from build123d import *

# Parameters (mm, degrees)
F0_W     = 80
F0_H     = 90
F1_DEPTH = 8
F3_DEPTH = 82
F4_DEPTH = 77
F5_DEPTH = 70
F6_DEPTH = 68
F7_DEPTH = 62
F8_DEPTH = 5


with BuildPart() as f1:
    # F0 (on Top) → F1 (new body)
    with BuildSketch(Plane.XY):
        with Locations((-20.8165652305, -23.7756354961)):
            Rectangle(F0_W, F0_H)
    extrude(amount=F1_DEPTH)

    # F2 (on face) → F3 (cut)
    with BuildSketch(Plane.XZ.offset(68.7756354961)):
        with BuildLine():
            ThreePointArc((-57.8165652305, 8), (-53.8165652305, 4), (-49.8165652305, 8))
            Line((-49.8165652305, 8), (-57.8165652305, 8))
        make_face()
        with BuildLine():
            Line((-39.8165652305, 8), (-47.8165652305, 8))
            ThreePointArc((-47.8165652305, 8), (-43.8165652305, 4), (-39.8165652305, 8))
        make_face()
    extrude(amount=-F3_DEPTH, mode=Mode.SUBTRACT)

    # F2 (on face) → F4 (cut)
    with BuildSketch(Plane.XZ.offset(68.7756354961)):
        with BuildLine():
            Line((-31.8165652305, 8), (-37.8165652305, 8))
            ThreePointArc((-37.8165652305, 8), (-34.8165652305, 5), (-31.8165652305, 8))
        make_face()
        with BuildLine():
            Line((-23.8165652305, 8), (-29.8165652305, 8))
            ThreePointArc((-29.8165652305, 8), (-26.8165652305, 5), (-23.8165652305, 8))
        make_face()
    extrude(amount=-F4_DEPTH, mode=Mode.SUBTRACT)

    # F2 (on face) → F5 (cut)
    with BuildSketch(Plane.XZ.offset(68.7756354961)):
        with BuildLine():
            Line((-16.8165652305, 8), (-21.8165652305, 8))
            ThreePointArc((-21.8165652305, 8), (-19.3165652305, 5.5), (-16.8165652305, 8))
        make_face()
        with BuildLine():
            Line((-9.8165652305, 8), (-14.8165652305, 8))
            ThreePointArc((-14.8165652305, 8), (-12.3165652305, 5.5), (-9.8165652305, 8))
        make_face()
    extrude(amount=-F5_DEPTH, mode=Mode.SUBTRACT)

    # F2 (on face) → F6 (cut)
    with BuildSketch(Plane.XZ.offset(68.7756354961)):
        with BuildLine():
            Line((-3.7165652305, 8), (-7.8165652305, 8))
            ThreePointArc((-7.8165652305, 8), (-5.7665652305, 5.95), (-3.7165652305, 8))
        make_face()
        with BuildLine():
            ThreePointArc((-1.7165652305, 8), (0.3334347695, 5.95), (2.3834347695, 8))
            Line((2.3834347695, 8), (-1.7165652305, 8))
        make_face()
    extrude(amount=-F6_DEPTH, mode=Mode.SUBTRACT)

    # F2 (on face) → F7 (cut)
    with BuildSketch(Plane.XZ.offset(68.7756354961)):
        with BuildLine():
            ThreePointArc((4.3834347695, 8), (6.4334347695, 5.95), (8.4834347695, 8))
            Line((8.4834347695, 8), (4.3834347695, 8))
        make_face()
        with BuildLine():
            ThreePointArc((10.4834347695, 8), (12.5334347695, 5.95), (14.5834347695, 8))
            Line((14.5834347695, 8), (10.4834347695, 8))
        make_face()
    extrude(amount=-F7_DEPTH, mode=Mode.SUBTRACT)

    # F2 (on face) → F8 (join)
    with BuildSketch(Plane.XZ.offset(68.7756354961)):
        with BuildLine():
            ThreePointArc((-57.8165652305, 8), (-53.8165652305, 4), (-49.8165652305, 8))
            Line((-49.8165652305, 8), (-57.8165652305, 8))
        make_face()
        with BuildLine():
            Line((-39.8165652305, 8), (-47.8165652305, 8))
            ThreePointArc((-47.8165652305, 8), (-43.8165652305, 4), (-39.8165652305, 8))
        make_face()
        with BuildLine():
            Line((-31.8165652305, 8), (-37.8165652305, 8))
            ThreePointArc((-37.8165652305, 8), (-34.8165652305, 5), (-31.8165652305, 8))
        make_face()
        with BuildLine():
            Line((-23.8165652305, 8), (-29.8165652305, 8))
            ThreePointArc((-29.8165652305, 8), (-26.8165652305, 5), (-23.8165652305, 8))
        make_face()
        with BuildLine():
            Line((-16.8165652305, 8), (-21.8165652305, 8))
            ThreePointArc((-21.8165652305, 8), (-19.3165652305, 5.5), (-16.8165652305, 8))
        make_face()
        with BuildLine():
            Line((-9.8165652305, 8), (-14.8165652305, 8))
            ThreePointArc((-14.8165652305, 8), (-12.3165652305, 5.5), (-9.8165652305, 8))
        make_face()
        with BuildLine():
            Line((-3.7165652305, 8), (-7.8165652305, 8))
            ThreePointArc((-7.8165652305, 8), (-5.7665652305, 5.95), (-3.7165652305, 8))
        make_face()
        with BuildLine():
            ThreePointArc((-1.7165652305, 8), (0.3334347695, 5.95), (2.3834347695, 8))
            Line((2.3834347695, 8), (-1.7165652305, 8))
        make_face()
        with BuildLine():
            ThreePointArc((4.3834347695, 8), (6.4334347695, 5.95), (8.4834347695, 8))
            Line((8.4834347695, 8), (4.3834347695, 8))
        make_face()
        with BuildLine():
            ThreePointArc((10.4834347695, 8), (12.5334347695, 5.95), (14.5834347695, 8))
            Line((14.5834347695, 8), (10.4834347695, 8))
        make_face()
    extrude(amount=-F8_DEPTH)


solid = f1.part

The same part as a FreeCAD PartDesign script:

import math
import FreeCAD as App
import Part
import Sketcher
from FreeCAD import Vector
Q = App.Units.Quantity


def add_polygon(sketch, points):
    """Adds a closed chain of lines whose ends are joined by coincident constraints."""
    first, n = sketch.GeometryCount, len(points)
    for a, b in zip(points, points[1:] + points[:1]):
        sketch.addGeometry(Part.LineSegment(App.Vector(*a, 0), App.Vector(*b, 0)), False)
    for i in range(n):
        sketch.addConstraint(Sketcher.Constraint("Coincident", first + i, 2, first + (i + 1) % n, 1))

doc = App.newDocument("Part")
body = doc.addObject("PartDesign::Body", "Body")

sketch1 = doc.addObject("Sketcher::SketchObject", "Sketch")
body.addObject(sketch1)
sketch1.AttachmentSupport = (doc.XY_Plane, [""])
sketch1.MapMode = "FlatFace"
add_polygon(sketch1, [(-60.816565, 21.224365), (-60.816565, -68.775635), (19.183435, -68.775635), (19.183435, 21.224365)])
sketch1.addConstraint(Sketcher.Constraint("Vertical", 0))
sketch1.addConstraint(Sketcher.Constraint("Horizontal", 1))
sketch1.addConstraint(Sketcher.Constraint("Vertical", 2))
sketch1.addConstraint(Sketcher.Constraint("Horizontal", 3))
sketch1.addConstraint(Sketcher.Constraint("DistanceX", 1, 1, 1, 2, Q("80 mm")))
sketch1.addConstraint(Sketcher.Constraint("DistanceY", 0, 2, 0, 1, Q("90 mm")))
sketch1.addConstraint(Sketcher.Constraint("DistanceX", 0, 2, -1, 1, Q("60.816565 mm")))
sketch1.addConstraint(Sketcher.Constraint("DistanceY", 0, 2, -1, 1, Q("68.775635 mm")))
pad1 = doc.addObject("PartDesign::Pad", "Pad")
body.addObject(pad1)
pad1.Profile = sketch1
pad1.Length = 8

sketch2 = doc.addObject("Sketcher::SketchObject", "Sketch001")
body.addObject(sketch2)
sketch2.AttachmentSupport = (doc.XZ_Plane, [""])
sketch2.MapMode = "FlatFace"
sketch2.AttachmentOffset = App.Placement(Vector(0, 0, 68.775635), App.Rotation())
sketch2.addGeometry(Part.ArcOfCircle(Part.Circle(Vector(-53.816565, 8, 0), Vector(0, 0, 1), 4), math.radians(180), math.radians(360)), False)
sketch2.addGeometry(Part.LineSegment(Vector(-49.816565, 8, 0), Vector(-57.816565, 8, 0)), False)
sketch2.addGeometry(Part.LineSegment(Vector(-39.816565, 8, 0), Vector(-47.816565, 8, 0)), False)
sketch2.addGeometry(Part.ArcOfCircle(Part.Circle(Vector(-43.816565, 8, 0), Vector(0, 0, 1), 4), math.radians(180), math.radians(360)), False)
sketch2.addConstraint(Sketcher.Constraint("Coincident", 0, 1, 1, 2))
sketch2.addConstraint(Sketcher.Constraint("Coincident", 1, 1, 0, 2))
sketch2.addConstraint(Sketcher.Constraint("Coincident", 2, 1, 3, 2))
sketch2.addConstraint(Sketcher.Constraint("Coincident", 3, 1, 2, 2))
sketch2.addConstraint(Sketcher.Constraint("Horizontal", 1))
sketch2.addConstraint(Sketcher.Constraint("Horizontal", 2))
sketch2.addConstraint(Sketcher.Constraint("Equal", 0, 3))
sketch2.addConstraint(Sketcher.Constraint("Horizontal", 0, 3, 3, 3))
sketch2.addConstraint(Sketcher.Constraint("Horizontal", 3, 3, 0, 1))
sketch2.addConstraint(Sketcher.Constraint("Horizontal", 1, 1, 2, 1))
sketch2.addConstraint(Sketcher.Constraint("Radius", 0, Q("4 mm")))
sketch2.addConstraint(Sketcher.Constraint("DistanceY", -1, 1, 0, 3, Q("8 mm")))
sketch2.addConstraint(Sketcher.Constraint("DistanceX", 0, 3, 3, 3, Q("10 mm")))
sketch2.addConstraint(Sketcher.Constraint("DistanceX", 0, 3, -1, 1, Q("53.816565 mm")))
pocket1 = doc.addObject("PartDesign::Pocket", "Pocket")
body.addObject(pocket1)
pocket1.Profile = sketch2
pocket1.Length = 82

sketch3 = doc.addObject("Sketcher::SketchObject", "Sketch002")
body.addObject(sketch3)
sketch3.AttachmentSupport = (doc.XZ_Plane, [""])
sketch3.MapMode = "FlatFace"
sketch3.AttachmentOffset = App.Placement(Vector(0, 0, 68.775635), App.Rotation())
sketch3.addGeometry(Part.LineSegment(Vector(-31.816565, 8, 0), Vector(-37.816565, 8, 0)), False)
sketch3.addGeometry(Part.ArcOfCircle(Part.Circle(Vector(-34.816565, 8, 0), Vector(0, 0, 1), 3), math.radians(180), math.radians(360)), False)
sketch3.addGeometry(Part.LineSegment(Vector(-23.816565, 8, 0), Vector(-29.816565, 8, 0)), False)
sketch3.addGeometry(Part.ArcOfCircle(Part.Circle(Vector(-26.816565, 8, 0), Vector(0, 0, 1), 3), math.radians(180), math.radians(360)), False)
sketch3.addConstraint(Sketcher.Constraint("Coincident", 0, 1, 1, 2))
sketch3.addConstraint(Sketcher.Constraint("Coincident", 1, 1, 0, 2))
sketch3.addConstraint(Sketcher.Constraint("Coincident", 2, 1, 3, 2))
sketch3.addConstraint(Sketcher.Constraint("Coincident", 3, 1, 2, 2))
sketch3.addConstraint(Sketcher.Constraint("Horizontal", 0))
sketch3.addConstraint(Sketcher.Constraint("Horizontal", 2))
sketch3.addConstraint(Sketcher.Constraint("Equal", 1, 3))
sketch3.addConstraint(Sketcher.Constraint("Horizontal", 1, 3, 3, 3))
sketch3.addConstraint(Sketcher.Constraint("Horizontal", 3, 3, 0, 1))
sketch3.addConstraint(Sketcher.Constraint("Horizontal", 1, 1, 2, 1))
sketch3.addConstraint(Sketcher.Constraint("Radius", 1, Q("3 mm")))
sketch3.addConstraint(Sketcher.Constraint("DistanceY", -1, 1, 1, 3, Q("8 mm")))
sketch3.addConstraint(Sketcher.Constraint("DistanceX", 1, 3, 3, 3, Q("8 mm")))
sketch3.addConstraint(Sketcher.Constraint("DistanceX", 1, 3, -1, 1, Q("34.816565 mm")))
pocket2 = doc.addObject("PartDesign::Pocket", "Pocket001")
body.addObject(pocket2)
pocket2.Profile = sketch3
pocket2.Length = 77

sketch4 = doc.addObject("Sketcher::SketchObject", "Sketch003")
body.addObject(sketch4)
sketch4.AttachmentSupport = (doc.XZ_Plane, [""])
sketch4.MapMode = "FlatFace"
sketch4.AttachmentOffset = App.Placement(Vector(0, 0, 68.775635), App.Rotation())
sketch4.addGeometry(Part.LineSegment(Vector(-16.816565, 8, 0), Vector(-21.816565, 8, 0)), False)
sketch4.addGeometry(Part.ArcOfCircle(Part.Circle(Vector(-19.316565, 8, 0), Vector(0, 0, 1), 2.5), math.radians(180), math.radians(360)), False)
sketch4.addGeometry(Part.LineSegment(Vector(-9.816565, 8, 0), Vector(-14.816565, 8, 0)), False)
sketch4.addGeometry(Part.ArcOfCircle(Part.Circle(Vector(-12.316565, 8, 0), Vector(0, 0, 1), 2.5), math.radians(180), math.radians(360)), False)
sketch4.addConstraint(Sketcher.Constraint("Coincident", 0, 1, 1, 2))
sketch4.addConstraint(Sketcher.Constraint("Coincident", 1, 1, 0, 2))
sketch4.addConstraint(Sketcher.Constraint("Coincident", 2, 1, 3, 2))
sketch4.addConstraint(Sketcher.Constraint("Coincident", 3, 1, 2, 2))
sketch4.addConstraint(Sketcher.Constraint("Horizontal", 0))
sketch4.addConstraint(Sketcher.Constraint("Horizontal", 2))
sketch4.addConstraint(Sketcher.Constraint("Equal", 1, 3))
sketch4.addConstraint(Sketcher.Constraint("Horizontal", 1, 3, 3, 3))
sketch4.addConstraint(Sketcher.Constraint("Horizontal", 3, 3, 0, 1))
sketch4.addConstraint(Sketcher.Constraint("Horizontal", 1, 1, 2, 1))
sketch4.addConstraint(Sketcher.Constraint("Radius", 1, Q("2.5 mm")))
sketch4.addConstraint(Sketcher.Constraint("DistanceY", -1, 1, 1, 3, Q("8 mm")))
sketch4.addConstraint(Sketcher.Constraint("DistanceX", 1, 3, 3, 3, Q("7 mm")))
sketch4.addConstraint(Sketcher.Constraint("DistanceX", 1, 3, -1, 1, Q("19.316565 mm")))
pocket3 = doc.addObject("PartDesign::Pocket", "Pocket002")
body.addObject(pocket3)
pocket3.Profile = sketch4
pocket3.Length = 70

sketch5 = doc.addObject("Sketcher::SketchObject", "Sketch004")
body.addObject(sketch5)
sketch5.AttachmentSupport = (doc.XZ_Plane, [""])
sketch5.MapMode = "FlatFace"
sketch5.AttachmentOffset = App.Placement(Vector(0, 0, 68.775635), App.Rotation())
sketch5.addGeometry(Part.LineSegment(Vector(-3.716565, 8, 0), Vector(-7.816565, 8, 0)), False)
sketch5.addGeometry(Part.ArcOfCircle(Part.Circle(Vector(-5.766565, 8, 0), Vector(0, 0, 1), 2.05), math.radians(180), math.radians(360)), False)
sketch5.addGeometry(Part.ArcOfCircle(Part.Circle(Vector(0.333435, 8, 0), Vector(0, 0, 1), 2.05), math.radians(180), math.radians(360)), False)
sketch5.addGeometry(Part.LineSegment(Vector(2.383435, 8, 0), Vector(-1.716565, 8, 0)), False)
sketch5.addConstraint(Sketcher.Constraint("Coincident", 0, 1, 1, 2))
sketch5.addConstraint(Sketcher.Constraint("Coincident", 1, 1, 0, 2))
sketch5.addConstraint(Sketcher.Constraint("Coincident", 2, 1, 3, 2))
sketch5.addConstraint(Sketcher.Constraint("Coincident", 3, 1, 2, 2))
sketch5.addConstraint(Sketcher.Constraint("Horizontal", 0))
sketch5.addConstraint(Sketcher.Constraint("Horizontal", 3))
sketch5.addConstraint(Sketcher.Constraint("Equal", 1, 2))
sketch5.addConstraint(Sketcher.Constraint("Horizontal", 1, 3, 2, 3))
sketch5.addConstraint(Sketcher.Constraint("Horizontal", 2, 3, 0, 1))
sketch5.addConstraint(Sketcher.Constraint("Horizontal", 1, 1, 2, 1))
sketch5.addConstraint(Sketcher.Constraint("Radius", 1, Q("2.05 mm")))
sketch5.addConstraint(Sketcher.Constraint("DistanceY", -1, 1, 1, 3, Q("8 mm")))
sketch5.addConstraint(Sketcher.Constraint("DistanceX", 0, 1, 2, 1, Q("2 mm")))
sketch5.addConstraint(Sketcher.Constraint("DistanceX", 1, 3, -1, 1, Q("5.766565 mm")))
pocket4 = doc.addObject("PartDesign::Pocket", "Pocket003")
body.addObject(pocket4)
pocket4.Profile = sketch5
pocket4.Length = 68

sketch6 = doc.addObject("Sketcher::SketchObject", "Sketch005")
body.addObject(sketch6)
sketch6.AttachmentSupport = (doc.XZ_Plane, [""])
sketch6.MapMode = "FlatFace"
sketch6.AttachmentOffset = App.Placement(Vector(0, 0, 68.775635), App.Rotation())
sketch6.addGeometry(Part.ArcOfCircle(Part.Circle(Vector(6.433435, 8, 0), Vector(0, 0, 1), 2.05), math.radians(180), math.radians(360)), False)
sketch6.addGeometry(Part.LineSegment(Vector(8.483435, 8, 0), Vector(4.383435, 8, 0)), False)
sketch6.addGeometry(Part.ArcOfCircle(Part.Circle(Vector(12.533435, 8, 0), Vector(0, 0, 1), 2.05), math.radians(180), math.radians(360)), False)
sketch6.addGeometry(Part.LineSegment(Vector(14.583435, 8, 0), Vector(10.483435, 8, 0)), False)
sketch6.addConstraint(Sketcher.Constraint("Coincident", 0, 1, 1, 2))
sketch6.addConstraint(Sketcher.Constraint("Coincident", 1, 1, 0, 2))
sketch6.addConstraint(Sketcher.Constraint("Coincident", 2, 1, 3, 2))
sketch6.addConstraint(Sketcher.Constraint("Coincident", 3, 1, 2, 2))
sketch6.addConstraint(Sketcher.Constraint("Horizontal", 1))
sketch6.addConstraint(Sketcher.Constraint("Horizontal", 3))
sketch6.addConstraint(Sketcher.Constraint("Equal", 0, 2))
sketch6.addConstraint(Sketcher.Constraint("Horizontal", 0, 3, 2, 3))
sketch6.addConstraint(Sketcher.Constraint("Horizontal", 2, 3, 0, 1))
sketch6.addConstraint(Sketcher.Constraint("Horizontal", 1, 1, 2, 1))
sketch6.addConstraint(Sketcher.Constraint("Radius", 0, Q("2.05 mm")))
sketch6.addConstraint(Sketcher.Constraint("DistanceY", -1, 1, 0, 3, Q("8 mm")))
sketch6.addConstraint(Sketcher.Constraint("DistanceX", 1, 1, 2, 1, Q("2 mm")))
sketch6.addConstraint(Sketcher.Constraint("DistanceX", -1, 1, 0, 3, Q("6.433435 mm")))
pocket5 = doc.addObject("PartDesign::Pocket", "Pocket004")
body.addObject(pocket5)
pocket5.Profile = sketch6
pocket5.Length = 62

sketch7 = doc.addObject("Sketcher::SketchObject", "Sketch006")
body.addObject(sketch7)
sketch7.AttachmentSupport = (doc.XZ_Plane, [""])
sketch7.MapMode = "FlatFace"
sketch7.AttachmentOffset = App.Placement(Vector(0, 0, 68.775635), App.Rotation())
sketch7.addGeometry(Part.ArcOfCircle(Part.Circle(Vector(-53.816565, 8, 0), Vector(0, 0, 1), 4), math.radians(180), math.radians(360)), False)
sketch7.addGeometry(Part.LineSegment(Vector(-49.816565, 8, 0), Vector(-57.816565, 8, 0)), False)
sketch7.addGeometry(Part.LineSegment(Vector(-39.816565, 8, 0), Vector(-47.816565, 8, 0)), False)
sketch7.addGeometry(Part.ArcOfCircle(Part.Circle(Vector(-43.816565, 8, 0), Vector(0, 0, 1), 4), math.radians(180), math.radians(360)), False)
sketch7.addGeometry(Part.LineSegment(Vector(-31.816565, 8, 0), Vector(-37.816565, 8, 0)), False)
sketch7.addGeometry(Part.ArcOfCircle(Part.Circle(Vector(-34.816565, 8, 0), Vector(0, 0, 1), 3), math.radians(180), math.radians(360)), False)
sketch7.addGeometry(Part.LineSegment(Vector(-23.816565, 8, 0), Vector(-29.816565, 8, 0)), False)
sketch7.addGeometry(Part.ArcOfCircle(Part.Circle(Vector(-26.816565, 8, 0), Vector(0, 0, 1), 3), math.radians(180), math.radians(360)), False)
sketch7.addGeometry(Part.LineSegment(Vector(-16.816565, 8, 0), Vector(-21.816565, 8, 0)), False)
sketch7.addGeometry(Part.ArcOfCircle(Part.Circle(Vector(-19.316565, 8, 0), Vector(0, 0, 1), 2.5), math.radians(180), math.radians(360)), False)
sketch7.addGeometry(Part.LineSegment(Vector(-9.816565, 8, 0), Vector(-14.816565, 8, 0)), False)
sketch7.addGeometry(Part.ArcOfCircle(Part.Circle(Vector(-12.316565, 8, 0), Vector(0, 0, 1), 2.5), math.radians(180), math.radians(360)), False)
sketch7.addGeometry(Part.LineSegment(Vector(-3.716565, 8, 0), Vector(-7.816565, 8, 0)), False)
sketch7.addGeometry(Part.ArcOfCircle(Part.Circle(Vector(-5.766565, 8, 0), Vector(0, 0, 1), 2.05), math.radians(180), math.radians(360)), False)
sketch7.addGeometry(Part.ArcOfCircle(Part.Circle(Vector(0.333435, 8, 0), Vector(0, 0, 1), 2.05), math.radians(180), math.radians(360)), False)
sketch7.addGeometry(Part.LineSegment(Vector(2.383435, 8, 0), Vector(-1.716565, 8, 0)), False)
sketch7.addGeometry(Part.ArcOfCircle(Part.Circle(Vector(6.433435, 8, 0), Vector(0, 0, 1), 2.05), math.radians(180), math.radians(360)), False)
sketch7.addGeometry(Part.LineSegment(Vector(8.483435, 8, 0), Vector(4.383435, 8, 0)), False)
sketch7.addGeometry(Part.ArcOfCircle(Part.Circle(Vector(12.533435, 8, 0), Vector(0, 0, 1), 2.05), math.radians(180), math.radians(360)), False)
sketch7.addGeometry(Part.LineSegment(Vector(14.583435, 8, 0), Vector(10.483435, 8, 0)), False)
sketch7.addConstraint(Sketcher.Constraint("Coincident", 0, 1, 1, 2))
sketch7.addConstraint(Sketcher.Constraint("Coincident", 1, 1, 0, 2))
sketch7.addConstraint(Sketcher.Constraint("Coincident", 2, 1, 3, 2))
sketch7.addConstraint(Sketcher.Constraint("Coincident", 3, 1, 2, 2))
sketch7.addConstraint(Sketcher.Constraint("Coincident", 4, 1, 5, 2))
sketch7.addConstraint(Sketcher.Constraint("Coincident", 5, 1, 4, 2))
sketch7.addConstraint(Sketcher.Constraint("Coincident", 6, 1, 7, 2))
sketch7.addConstraint(Sketcher.Constraint("Coincident", 7, 1, 6, 2))
sketch7.addConstraint(Sketcher.Constraint("Coincident", 8, 1, 9, 2))
sketch7.addConstraint(Sketcher.Constraint("Coincident", 9, 1, 8, 2))
sketch7.addConstraint(Sketcher.Constraint("Coincident", 10, 1, 11, 2))
sketch7.addConstraint(Sketcher.Constraint("Coincident", 11, 1, 10, 2))
sketch7.addConstraint(Sketcher.Constraint("Coincident", 12, 1, 13, 2))
sketch7.addConstraint(Sketcher.Constraint("Coincident", 13, 1, 12, 2))
sketch7.addConstraint(Sketcher.Constraint("Coincident", 14, 1, 15, 2))
sketch7.addConstraint(Sketcher.Constraint("Coincident", 15, 1, 14, 2))
sketch7.addConstraint(Sketcher.Constraint("Coincident", 16, 1, 17, 2))
sketch7.addConstraint(Sketcher.Constraint("Coincident", 17, 1, 16, 2))
sketch7.addConstraint(Sketcher.Constraint("Coincident", 18, 1, 19, 2))
sketch7.addConstraint(Sketcher.Constraint("Coincident", 19, 1, 18, 2))
sketch7.addConstraint(Sketcher.Constraint("Horizontal", 1))
sketch7.addConstraint(Sketcher.Constraint("Horizontal", 2))
sketch7.addConstraint(Sketcher.Constraint("Horizontal", 4))
sketch7.addConstraint(Sketcher.Constraint("Horizontal", 6))
sketch7.addConstraint(Sketcher.Constraint("Horizontal", 8))
sketch7.addConstraint(Sketcher.Constraint("Horizontal", 10))
sketch7.addConstraint(Sketcher.Constraint("Horizontal", 12))
sketch7.addConstraint(Sketcher.Constraint("Horizontal", 15))
sketch7.addConstraint(Sketcher.Constraint("Horizontal", 17))
sketch7.addConstraint(Sketcher.Constraint("Horizontal", 19))
sketch7.addConstraint(Sketcher.Constraint("Equal", 0, 3))
sketch7.addConstraint(Sketcher.Constraint("Equal", 5, 7))
sketch7.addConstraint(Sketcher.Constraint("Equal", 9, 11))
sketch7.addConstraint(Sketcher.Constraint("Equal", 13, 14))
sketch7.addConstraint(Sketcher.Constraint("Equal", 14, 16))
sketch7.addConstraint(Sketcher.Constraint("Equal", 16, 18))
sketch7.addConstraint(Sketcher.Constraint("Horizontal", 0, 3, 3, 3))
sketch7.addConstraint(Sketcher.Constraint("Horizontal", 3, 3, 5, 3))
sketch7.addConstraint(Sketcher.Constraint("Horizontal", 5, 3, 7, 3))
sketch7.addConstraint(Sketcher.Constraint("Horizontal", 7, 3, 9, 3))
sketch7.addConstraint(Sketcher.Constraint("Horizontal", 9, 3, 11, 3))
sketch7.addConstraint(Sketcher.Constraint("Horizontal", 11, 3, 13, 3))
sketch7.addConstraint(Sketcher.Constraint("Horizontal", 13, 3, 14, 3))
sketch7.addConstraint(Sketcher.Constraint("Horizontal", 14, 3, 16, 3))
sketch7.addConstraint(Sketcher.Constraint("Horizontal", 16, 3, 18, 3))
sketch7.addConstraint(Sketcher.Constraint("Horizontal", 18, 3, 0, 1))
sketch7.addConstraint(Sketcher.Constraint("Horizontal", 1, 1, 2, 1))
sketch7.addConstraint(Sketcher.Constraint("Horizontal", 3, 1, 4, 1))
sketch7.addConstraint(Sketcher.Constraint("Horizontal", 5, 1, 6, 1))
sketch7.addConstraint(Sketcher.Constraint("Horizontal", 7, 1, 8, 1))
sketch7.addConstraint(Sketcher.Constraint("Horizontal", 9, 1, 10, 1))
sketch7.addConstraint(Sketcher.Constraint("Horizontal", 11, 1, 12, 1))
sketch7.addConstraint(Sketcher.Constraint("Horizontal", 13, 1, 14, 1))
sketch7.addConstraint(Sketcher.Constraint("Horizontal", 15, 1, 16, 1))
sketch7.addConstraint(Sketcher.Constraint("Horizontal", 17, 1, 18, 1))
sketch7.addConstraint(Sketcher.Constraint("Radius", 0, Q("4 mm")))
sketch7.addConstraint(Sketcher.Constraint("Radius", 5, Q("3 mm")))
sketch7.addConstraint(Sketcher.Constraint("Radius", 9, Q("2.5 mm")))
sketch7.addConstraint(Sketcher.Constraint("Radius", 13, Q("2.05 mm")))
sketch7.addConstraint(Sketcher.Constraint("DistanceY", -1, 1, 0, 3, Q("8 mm")))
sketch7.addConstraint(Sketcher.Constraint("DistanceX", 0, 3, 3, 3, Q("10 mm")))
sketch7.addConstraint(Sketcher.Constraint("DistanceX", 3, 3, 5, 3, Q("9 mm")))
sketch7.addConstraint(Sketcher.Constraint("DistanceX", 5, 3, 7, 3, Q("8 mm")))
sketch7.addConstraint(Sketcher.Constraint("DistanceX", 9, 3, 11, 3, Q("7 mm")))
sketch7.addConstraint(Sketcher.Constraint("DistanceX", 6, 1, 8, 1, Q("7 mm")))
sketch7.addConstraint(Sketcher.Constraint("DistanceX", 10, 1, 13, 1, Q("2 mm")))
sketch7.addConstraint(Sketcher.Constraint("DistanceX", 12, 1, 14, 1, Q("2 mm")))
sketch7.addConstraint(Sketcher.Constraint("DistanceX", 15, 1, 16, 1, Q("2 mm")))
sketch7.addConstraint(Sketcher.Constraint("DistanceX", 17, 1, 18, 1, Q("2 mm")))
sketch7.addConstraint(Sketcher.Constraint("DistanceX", 0, 3, -1, 1, Q("53.816565 mm")))
pad2 = doc.addObject("PartDesign::Pad", "Pad001")
body.addObject(pad2)
pad2.Profile = sketch7
pad2.Length = 5
pad2.Reversed = True

doc.recompute()
